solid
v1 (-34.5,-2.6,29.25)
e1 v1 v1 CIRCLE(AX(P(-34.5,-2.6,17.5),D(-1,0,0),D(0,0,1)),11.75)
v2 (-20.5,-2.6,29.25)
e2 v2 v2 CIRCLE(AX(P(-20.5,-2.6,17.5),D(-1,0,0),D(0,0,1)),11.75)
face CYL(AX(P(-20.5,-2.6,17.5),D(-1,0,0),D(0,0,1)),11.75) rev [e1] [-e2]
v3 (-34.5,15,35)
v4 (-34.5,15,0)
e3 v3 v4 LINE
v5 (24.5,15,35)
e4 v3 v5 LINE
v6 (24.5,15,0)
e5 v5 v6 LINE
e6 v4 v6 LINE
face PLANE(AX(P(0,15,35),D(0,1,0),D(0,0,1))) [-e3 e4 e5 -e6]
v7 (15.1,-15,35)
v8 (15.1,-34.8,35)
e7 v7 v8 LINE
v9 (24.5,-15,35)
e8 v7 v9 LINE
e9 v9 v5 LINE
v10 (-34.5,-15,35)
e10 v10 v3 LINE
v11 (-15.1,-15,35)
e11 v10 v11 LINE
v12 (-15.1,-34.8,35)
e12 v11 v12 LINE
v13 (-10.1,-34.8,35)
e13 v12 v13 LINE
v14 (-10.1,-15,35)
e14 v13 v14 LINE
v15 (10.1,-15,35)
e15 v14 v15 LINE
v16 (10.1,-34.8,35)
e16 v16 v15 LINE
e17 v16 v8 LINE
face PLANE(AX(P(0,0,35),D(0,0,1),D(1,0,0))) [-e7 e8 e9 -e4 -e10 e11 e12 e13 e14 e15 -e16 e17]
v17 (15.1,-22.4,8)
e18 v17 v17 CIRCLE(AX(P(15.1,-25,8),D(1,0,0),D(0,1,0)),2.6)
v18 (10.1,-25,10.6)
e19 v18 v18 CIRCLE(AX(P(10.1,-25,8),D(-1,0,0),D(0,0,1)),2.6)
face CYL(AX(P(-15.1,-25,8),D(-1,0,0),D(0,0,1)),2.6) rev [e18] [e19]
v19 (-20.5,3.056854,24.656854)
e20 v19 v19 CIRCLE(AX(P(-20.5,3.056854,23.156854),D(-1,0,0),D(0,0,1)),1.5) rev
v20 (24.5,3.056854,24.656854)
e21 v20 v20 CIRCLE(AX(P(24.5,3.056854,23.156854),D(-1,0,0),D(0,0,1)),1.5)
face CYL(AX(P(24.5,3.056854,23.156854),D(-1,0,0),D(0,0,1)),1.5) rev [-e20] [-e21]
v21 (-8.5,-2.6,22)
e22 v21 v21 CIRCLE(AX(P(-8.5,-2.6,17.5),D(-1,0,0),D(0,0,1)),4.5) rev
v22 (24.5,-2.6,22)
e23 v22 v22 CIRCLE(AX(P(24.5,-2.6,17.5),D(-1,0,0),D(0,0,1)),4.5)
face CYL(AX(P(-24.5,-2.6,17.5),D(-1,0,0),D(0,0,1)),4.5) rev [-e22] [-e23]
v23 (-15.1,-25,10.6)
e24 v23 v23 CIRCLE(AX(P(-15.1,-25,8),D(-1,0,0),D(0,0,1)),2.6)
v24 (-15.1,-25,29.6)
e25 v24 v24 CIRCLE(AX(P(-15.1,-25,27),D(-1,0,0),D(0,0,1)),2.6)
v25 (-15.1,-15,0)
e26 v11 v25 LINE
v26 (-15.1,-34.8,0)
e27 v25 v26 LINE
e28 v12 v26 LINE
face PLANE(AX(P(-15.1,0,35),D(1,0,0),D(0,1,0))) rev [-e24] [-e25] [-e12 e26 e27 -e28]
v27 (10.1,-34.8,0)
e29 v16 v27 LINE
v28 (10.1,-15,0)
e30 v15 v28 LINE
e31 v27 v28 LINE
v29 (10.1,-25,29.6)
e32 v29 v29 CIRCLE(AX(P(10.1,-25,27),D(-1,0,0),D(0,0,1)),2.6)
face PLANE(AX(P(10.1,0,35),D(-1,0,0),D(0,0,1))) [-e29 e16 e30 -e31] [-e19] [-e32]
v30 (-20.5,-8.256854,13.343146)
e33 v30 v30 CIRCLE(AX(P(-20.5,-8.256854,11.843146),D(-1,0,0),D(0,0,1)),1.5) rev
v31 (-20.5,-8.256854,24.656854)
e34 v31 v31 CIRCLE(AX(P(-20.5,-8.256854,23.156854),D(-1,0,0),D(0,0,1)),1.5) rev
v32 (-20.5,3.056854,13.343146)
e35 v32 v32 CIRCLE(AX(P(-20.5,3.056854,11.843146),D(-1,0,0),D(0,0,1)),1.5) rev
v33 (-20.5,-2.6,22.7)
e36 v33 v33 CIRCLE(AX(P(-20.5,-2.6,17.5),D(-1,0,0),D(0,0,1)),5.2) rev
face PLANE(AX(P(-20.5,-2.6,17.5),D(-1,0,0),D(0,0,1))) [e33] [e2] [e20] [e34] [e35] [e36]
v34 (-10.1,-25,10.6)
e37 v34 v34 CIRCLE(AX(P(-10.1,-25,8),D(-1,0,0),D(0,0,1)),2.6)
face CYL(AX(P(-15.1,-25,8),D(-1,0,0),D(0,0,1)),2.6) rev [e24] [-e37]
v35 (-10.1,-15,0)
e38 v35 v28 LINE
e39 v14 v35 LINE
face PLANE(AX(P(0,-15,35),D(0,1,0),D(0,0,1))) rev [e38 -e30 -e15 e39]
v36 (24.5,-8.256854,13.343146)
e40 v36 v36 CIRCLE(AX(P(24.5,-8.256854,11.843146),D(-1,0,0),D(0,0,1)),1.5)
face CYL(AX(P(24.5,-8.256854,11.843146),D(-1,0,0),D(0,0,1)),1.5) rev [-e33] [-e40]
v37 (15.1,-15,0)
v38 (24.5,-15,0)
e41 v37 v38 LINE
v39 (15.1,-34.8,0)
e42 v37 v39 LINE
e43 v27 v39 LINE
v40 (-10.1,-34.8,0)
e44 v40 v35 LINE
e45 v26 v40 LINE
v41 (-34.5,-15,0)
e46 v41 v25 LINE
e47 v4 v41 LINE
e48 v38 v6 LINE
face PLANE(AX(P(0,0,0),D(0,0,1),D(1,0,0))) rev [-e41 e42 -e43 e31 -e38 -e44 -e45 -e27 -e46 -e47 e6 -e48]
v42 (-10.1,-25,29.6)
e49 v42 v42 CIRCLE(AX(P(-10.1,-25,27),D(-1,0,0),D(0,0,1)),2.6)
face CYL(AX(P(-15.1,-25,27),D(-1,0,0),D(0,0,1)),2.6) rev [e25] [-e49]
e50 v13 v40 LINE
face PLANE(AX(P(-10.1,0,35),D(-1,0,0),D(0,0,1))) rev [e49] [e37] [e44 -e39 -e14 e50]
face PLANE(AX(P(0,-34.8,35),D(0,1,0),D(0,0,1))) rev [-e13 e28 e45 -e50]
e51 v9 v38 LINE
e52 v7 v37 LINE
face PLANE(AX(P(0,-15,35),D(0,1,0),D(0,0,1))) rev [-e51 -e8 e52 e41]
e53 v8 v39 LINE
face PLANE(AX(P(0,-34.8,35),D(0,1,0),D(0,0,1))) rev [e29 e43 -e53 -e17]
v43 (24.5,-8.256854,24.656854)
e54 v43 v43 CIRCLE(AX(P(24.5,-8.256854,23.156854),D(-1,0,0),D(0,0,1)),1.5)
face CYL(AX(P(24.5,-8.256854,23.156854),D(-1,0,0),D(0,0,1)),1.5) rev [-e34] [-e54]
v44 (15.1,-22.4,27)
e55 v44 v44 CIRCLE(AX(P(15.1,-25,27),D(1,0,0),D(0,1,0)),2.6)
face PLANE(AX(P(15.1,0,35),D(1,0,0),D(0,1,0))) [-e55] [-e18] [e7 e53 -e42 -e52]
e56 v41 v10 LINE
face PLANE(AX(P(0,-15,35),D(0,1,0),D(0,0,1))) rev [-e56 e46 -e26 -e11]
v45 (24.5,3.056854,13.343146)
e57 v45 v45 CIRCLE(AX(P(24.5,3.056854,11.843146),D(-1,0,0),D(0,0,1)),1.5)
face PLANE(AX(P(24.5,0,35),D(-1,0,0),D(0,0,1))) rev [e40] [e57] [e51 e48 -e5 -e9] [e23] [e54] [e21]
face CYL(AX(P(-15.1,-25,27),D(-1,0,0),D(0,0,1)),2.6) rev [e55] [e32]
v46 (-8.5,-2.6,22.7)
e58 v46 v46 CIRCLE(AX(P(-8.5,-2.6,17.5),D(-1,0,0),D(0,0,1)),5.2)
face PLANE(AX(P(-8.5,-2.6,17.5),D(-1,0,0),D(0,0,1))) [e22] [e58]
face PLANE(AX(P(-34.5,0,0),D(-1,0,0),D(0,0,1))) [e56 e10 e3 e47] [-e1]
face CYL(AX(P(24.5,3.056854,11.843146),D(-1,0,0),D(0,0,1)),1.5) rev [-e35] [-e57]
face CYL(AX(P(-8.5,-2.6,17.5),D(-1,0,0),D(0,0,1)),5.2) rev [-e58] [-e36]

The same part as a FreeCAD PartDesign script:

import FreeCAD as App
import Part
import Sketcher

doc = App.newDocument("Part")
body = doc.addObject("PartDesign::Body", "Body")

sketch1 = body.newObject("Sketcher::SketchObject", "Sketch")
sketch1.AttachmentSupport = (doc.getObject("XY_Plane"), [""])
sketch1.MapMode = "FlatFace"
sketch1.addGeometry([
    Part.LineSegment(App.Vector(15, -35, 0), App.Vector(15, -15, 0)),
    Part.LineSegment(App.Vector(15, -15, 0), App.Vector(24, -15, 0)),
    Part.LineSegment(App.Vector(24, -15, 0), App.Vector(24, 15, 0)),
    Part.LineSegment(App.Vector(24, 15, 0), App.Vector(-24, 15, 0)),
    Part.LineSegment(App.Vector(-24, 15, 0), App.Vector(-24, -15, 0)),
    Part.LineSegment(App.Vector(-24, -15, 0), App.Vector(-15, -15, 0)),
    Part.LineSegment(App.Vector(-15, -15, 0), App.Vector(-15, -35, 0)),
    Part.LineSegment(App.Vector(-15, -35, 0), App.Vector(-10, -35, 0)),
    Part.LineSegment(App.Vector(-10, -35, 0), App.Vector(-10, -15, 0)),
    Part.LineSegment(App.Vector(-10, -15, 0), App.Vector(10, -15, 0)),
    Part.LineSegment(App.Vector(10, -15, 0), App.Vector(10, -35, 0)),
    Part.LineSegment(App.Vector(10, -35, 0), App.Vector(15, -35, 0)),
], False)
sketch1.addConstraint([
    Sketcher.Constraint("Coincident", 0, 2, 1, 1),
    Sketcher.Constraint("Coincident", 1, 2, 2, 1),
    Sketcher.Constraint("Coincident", 2, 2, 3, 1),
    Sketcher.Constraint("Coincident", 3, 2, 4, 1),
    Sketcher.Constraint("Coincident", 4, 2, 5, 1),
    Sketcher.Constraint("Coincident", 5, 2, 6, 1),
    Sketcher.Constraint("Coincident", 6, 2, 7, 1),
    Sketcher.Constraint("Coincident", 7, 2, 8, 1),
    Sketcher.Constraint("Coincident", 8, 2, 9, 1),
    Sketcher.Constraint("Coincident", 9, 2, 10, 1),
    Sketcher.Constraint("Coincident", 10, 2, 11, 1),
    Sketcher.Constraint("Coincident", 11, 2, 0, 1),
    Sketcher.Constraint("Vertical", 0),
    Sketcher.Constraint("Horizontal", 1),
    Sketcher.Constraint("Vertical", 2),
    Sketcher.Constraint("Horizontal", 3),
    Sketcher.Constraint("Vertical", 4),
    Sketcher.Constraint("Horizontal", 5),
    Sketcher.Constraint("Vertical", 6),
    Sketcher.Constraint("Horizontal", 7),
    Sketcher.Constraint("Vertical", 8),
    Sketcher.Constraint("Horizontal", 9),
    Sketcher.Constraint("Vertical", 10),
    Sketcher.Constraint("Horizontal", 11),
    Sketcher.Constraint("Symmetric", 1, 2, 3, 2, -1, 1),
    Sketcher.Constraint("Symmetric", 0, 2, 5, 2, -2),
    Sketcher.Constraint("Symmetric", 7, 2, 10, 2, -2),
    Sketcher.Constraint("Horizontal", 5, 2, 8, 2),
    Sketcher.Constraint("DistanceX", 3, 2, 3, 1, 49.0),
    Sketcher.Constraint("DistanceX", 7, 1, 7, 2, 5.0),
    Sketcher.Constraint("DistanceY", 2, 1, 2, 2, 30.0),
    Sketcher.Constraint("DistanceX", 1, 1, 1, 2, 9.4),
    Sketcher.Constraint("DistanceY", 0, 1, 0, 2, 19.8),
])
pad1 = body.newObject("PartDesign::Pad", "Pad")
pad1.Profile = sketch1
pad1.Length = 35

sketch2 = body.newObject("Sketcher::SketchObject", "Sketch001")
sketch2.AttachmentSupport = (doc.getObject("YZ_Plane"), [""])
sketch2.MapMode = "FlatFace"
sketch2.AttachmentOffset = App.Placement(App.Vector(0, 0, -24.5), App.Rotation())
sketch2.addGeometry(Part.Circle(App.Vector(-2.6, 17.5, 0), App.Vector(0, 0, 1), 4.5), False)
sketch2.addConstraint([
    Sketcher.Constraint("Diameter", 0, 9.0),
    Sketcher.Constraint("DistanceX", 0, 3, -1, 1, 2.6),
    Sketcher.Constraint("DistanceY", -1, 1, 0, 3, 17.5),
])
doc.recompute()
hole = body.newObject("PartDesign::Hole", "Hole")
hole.Profile = sketch2
hole.ThreadType = "None"
hole.Diameter = 9
hole.DepthType = "ThroughAll"
hole.Reversed = True

sketch3 = body.newObject("Sketcher::SketchObject", "Sketch002")
sketch3.AttachmentSupport = (doc.getObject("YZ_Plane"), [""])
sketch3.MapMode = "FlatFace"
sketch3.AttachmentOffset = App.Placement(App.Vector(0, 0, -24.5), App.Rotation())
sketch3.addGeometry([
    Part.Circle(App.Vector(3.1, 11.8, 0), App.Vector(0, 0, 1), 1.5),
    Part.Circle(App.Vector(3.1, 23.2, 0), App.Vector(0, 0, 1), 1.5),
    Part.Circle(App.Vector(-8.3, 23.2, 0), App.Vector(0, 0, 1), 1.5),
    Part.Circle(App.Vector(-8.3, 11.8, 0), App.Vector(0, 0, 1), 1.5),
], False)
sketch3.addConstraint([
    Sketcher.Constraint("Equal", 0, 1),
    Sketcher.Constraint("Equal", 1, 2),
    Sketcher.Constraint("Equal", 2, 3),
    Sketcher.Constraint("Horizontal", 1, 3, 2, 3),
    Sketcher.Constraint("Horizontal", 0, 3, 3, 3),
    Sketcher.Constraint("Vertical", 0, 3, 1, 3),
    Sketcher.Constraint("Vertical", 2, 3, 3, 3),
    Sketcher.Constraint("Diameter", 0, 3.0),
    Sketcher.Constraint("DistanceY", 0, 3, 1, 3, 11.313708),
    Sketcher.Constraint("DistanceX", 2, 3, 1, 3, 11.313708),
    Sketcher.Constraint("DistanceX", -1, 1, 0, 3, 3.056854),
    Sketcher.Constraint("DistanceY", -1, 1, 0, 3, 11.843146),
])
pocket1 = body.newObject("PartDesign::Pocket", "Pocket")
pocket1.Profile = sketch3
pocket1.Type = "ThroughAll"
pocket1.Reversed = True

sketch4 = body.newObject("Sketcher::SketchObject", "Sketch003")
sketch4.AttachmentSupport = (doc.getObject("YZ_Plane"), [""])
sketch4.MapMode = "FlatFace"
sketch4.AttachmentOffset = App.Placement(App.Vector(0, 0, -24.5), App.Rotation())
sketch4.addGeometry(Part.Circle(App.Vector(-3, 18, 0), App.Vector(0, 0, 1), 5), False)
sketch4.addConstraint([
    Sketcher.Constraint("Diameter", 0, 10.4),
    Sketcher.Constraint("DistanceX", 0, 3, -1, 1, 2.6),
    Sketcher.Constraint("DistanceY", -1, 1, 0, 3, 17.5),
])
pocket2 = body.newObject("PartDesign::Pocket", "Pocket001")
pocket2.Profile = sketch4
pocket2.Length = 16
pocket2.Reversed = True

sketch5 = body.newObject("Sketcher::SketchObject", "Sketch004")
sketch5.AttachmentSupport = (doc.getObject("YZ_Plane"), [""])
sketch5.MapMode = "FlatFace"
sketch5.AttachmentOffset = App.Placement(App.Vector(0, 0, -24.5), App.Rotation())
sketch5.addGeometry(Part.Circle(App.Vector(-3, 18, 0), App.Vector(0, 0, 1), 12), False)
sketch5.addConstraint([
    Sketcher.Constraint("Diameter", 0, 23.5),
    Sketcher.Constraint("DistanceX", 0, 3, -1, 1, 2.6),
    Sketcher.Constraint("DistanceY", -1, 1, 0, 3, 17.5),
])
pocket3 = body.newObject("PartDesign::Pocket", "Pocket002")
pocket3.Profile = sketch5
pocket3.Length = 4
pocket3.Reversed = True

sketch6 = body.newObject("Sketcher::SketchObject", "Sketch005")
sketch6.AttachmentSupport = (doc.getObject("YZ_Plane"), [""])
sketch6.MapMode = "FlatFace"
sketch6.AttachmentOffset = App.Placement(App.Vector(0, 0, -15.1), App.Rotation())
sketch6.addGeometry([
    Part.Circle(App.Vector(-25, 8, 0), App.Vector(0, 0, 1), 2.6),
    Part.Circle(App.Vector(-25, 27, 0), App.Vector(0, 0, 1), 2.6),
], False)
sketch6.addConstraint([
    Sketcher.Constraint("Equal", 0, 1),
    Sketcher.Constraint("Vertical", 0, 3, 1, 3),
    Sketcher.Constraint("Diameter", 0, 5.2),
    Sketcher.Constraint("DistanceX", 0, 3, -1, 1, 25.0),
    Sketcher.Constraint("DistanceY", -1, 1, 0, 3, 8.0),
    Sketcher.Constraint("DistanceY", -1, 1, 1, 3, 27.0),
])
doc.recompute()
hole2 = body.newObject("PartDesign::Hole", "Hole001")
hole2.Profile = sketch6
hole2.ThreadType = "None"
hole2.Diameter = 5.2
hole2.DepthType = "Dimension"
hole2.Depth = 100
hole2.DrillPoint = "Flat"
hole2.Reversed = True

sketch7 = body.newObject("Sketcher::SketchObject", "Sketch006")
sketch7.AttachmentSupport = (doc.getObject("YZ_Plane"), [""])
sketch7.MapMode = "FlatFace"
sketch7.AttachmentOffset = App.Placement(App.Vector(0, 0, -34.5), App.Rotation())
sketch7.addGeometry([
    Part.LineSegment(App.Vector(15, 0, 0), App.Vector(-15, 0, 0)),
    Part.LineSegment(App.Vector(-15, 0, 0), App.Vector(-15, 35, 0)),
    Part.LineSegment(App.Vector(-15, 35, 0), App.Vector(15, 35, 0)),
    Part.LineSegment(App.Vector(15, 35, 0), App.Vector(15, 0, 0)),
    Part.Circle(App.Vector(-3, 18, 0), App.Vector(0, 0, 1), 12),
], False)
sketch7.addConstraint([
    Sketcher.Constraint("Coincident", 0, 2, 1, 1),
    Sketcher.Constraint("Coincident", 1, 2, 2, 1),
    Sketcher.Constraint("Coincident", 2, 2, 3, 1),
    Sketcher.Constraint("Coincident", 3, 2, 0, 1),
    Sketcher.Constraint("Horizontal", 0),
    Sketcher.Constraint("Vertical", 1),
    Sketcher.Constraint("Horizontal", 2),
    Sketcher.Constraint("Vertical", 3),
    Sketcher.Constraint("Symmetric", 0, 2, 3, 2, -1, 1),
    Sketcher.Constraint("Diameter", 4, 23.5),
    Sketcher.Constraint("DistanceX", 0, 2, 0, 1, 30.0),
    Sketcher.Constraint("DistanceY", 1, 1, 1, 2, 35.0),
    Sketcher.Constraint("DistanceX", 4, 3, -1, 1, 2.6),
    Sketcher.Constraint("DistanceY", -1, 1, 4, 3, 17.5),
])
pad2 = body.newObject("PartDesign::Pad", "Pad001")
pad2.Profile = sketch7
pad2.Length = 10

doc.recompute()
